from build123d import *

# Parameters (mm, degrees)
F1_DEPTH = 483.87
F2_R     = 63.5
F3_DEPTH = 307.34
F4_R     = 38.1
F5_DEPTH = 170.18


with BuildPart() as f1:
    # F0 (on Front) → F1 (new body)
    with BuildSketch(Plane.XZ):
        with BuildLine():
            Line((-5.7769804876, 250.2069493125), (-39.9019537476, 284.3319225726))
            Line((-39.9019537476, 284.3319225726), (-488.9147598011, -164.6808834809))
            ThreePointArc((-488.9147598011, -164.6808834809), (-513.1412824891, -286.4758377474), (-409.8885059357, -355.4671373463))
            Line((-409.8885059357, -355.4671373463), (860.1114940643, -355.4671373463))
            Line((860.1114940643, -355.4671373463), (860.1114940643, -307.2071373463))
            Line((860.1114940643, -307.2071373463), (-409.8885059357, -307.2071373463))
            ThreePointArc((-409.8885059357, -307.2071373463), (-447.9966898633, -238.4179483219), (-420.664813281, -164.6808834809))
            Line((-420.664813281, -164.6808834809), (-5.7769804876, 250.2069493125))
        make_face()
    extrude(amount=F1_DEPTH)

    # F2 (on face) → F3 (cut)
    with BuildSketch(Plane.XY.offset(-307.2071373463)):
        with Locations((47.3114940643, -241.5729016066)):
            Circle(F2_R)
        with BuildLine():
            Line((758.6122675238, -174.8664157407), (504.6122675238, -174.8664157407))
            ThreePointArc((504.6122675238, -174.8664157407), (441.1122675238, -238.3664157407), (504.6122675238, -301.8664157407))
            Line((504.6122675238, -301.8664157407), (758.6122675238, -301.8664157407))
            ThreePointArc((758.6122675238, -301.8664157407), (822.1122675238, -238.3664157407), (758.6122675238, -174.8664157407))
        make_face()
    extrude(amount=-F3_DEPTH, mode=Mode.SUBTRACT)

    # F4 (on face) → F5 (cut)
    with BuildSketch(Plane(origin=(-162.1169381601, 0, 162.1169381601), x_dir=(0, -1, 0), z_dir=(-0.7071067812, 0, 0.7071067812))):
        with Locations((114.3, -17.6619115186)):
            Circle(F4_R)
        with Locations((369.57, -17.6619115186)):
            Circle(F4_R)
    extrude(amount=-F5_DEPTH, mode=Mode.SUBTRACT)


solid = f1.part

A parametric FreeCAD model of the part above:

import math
import FreeCAD as App
import Part
import Sketcher
from FreeCAD import Vector
Q = App.Units.Quantity

doc = App.newDocument("Part")
body = doc.addObject("PartDesign::Body", "Body")

# Sketch on XZ plane
sketch1 = body.newObject("Sketcher::SketchObject", "Sketch")
sketch1.AttachmentSupport = (doc.getObject("XZ_Plane"), [""])
sketch1.MapMode = "FlatFace"
sketch1.addGeometry(Part.LineSegment(Vector(-6, 250, 0), Vector(-40, 284, 0)), False)
sketch1.addGeometry(Part.LineSegment(Vector(-40, 284, 0), Vector(-489, -165, 0)), False)
sketch1.addGeometry(Part.ArcOfCircle(Part.Circle(Vector(-410, -244, 0), Vector(0, 0, 1), 112), math.radians(135), math.radians(270)), False)
sketch1.addGeometry(Part.LineSegment(Vector(-410, -355, 0), Vector(860, -355, 0)), False)
sketch1.addGeometry(Part.LineSegment(Vector(860, -355, 0), Vector(860, -307, 0)), False)
sketch1.addGeometry(Part.LineSegment(Vector(860, -307, 0), Vector(-410, -307, 0)), False)
sketch1.addGeometry(Part.ArcOfCircle(Part.Circle(Vector(-354, -231, 0), Vector(0, 0, 1), 94), math.radians(135), math.radians(234)), False)
sketch1.addGeometry(Part.LineSegment(Vector(-421, -165, 0), Vector(-6, 250, 0)), False)
sketch1.addConstraint(Sketcher.Constraint("Coincident", 0, 2, 1, 1))
sketch1.addConstraint(Sketcher.Constraint("Tangent", 1, 2, 2, 1))
sketch1.addConstraint(Sketcher.Constraint("Tangent", 2, 2, 3, 1))
sketch1.addConstraint(Sketcher.Constraint("Coincident", 3, 2, 4, 1))
sketch1.addConstraint(Sketcher.Constraint("Coincident", 4, 2, 5, 1))
sketch1.addConstraint(Sketcher.Constraint("Coincident", 5, 2, 6, 2))
sketch1.addConstraint(Sketcher.Constraint("Tangent", 6, 1, 7, 1))
sketch1.addConstraint(Sketcher.Constraint("Coincident", 7, 2, 0, 1))
sketch1.addConstraint(Sketcher.Constraint("Horizontal", 3))
sketch1.addConstraint(Sketcher.Constraint("Vertical", 4))
sketch1.addConstraint(Sketcher.Constraint("Horizontal", 5))
sketch1.addConstraint(Sketcher.Constraint("Perpendicular", 0, 1))
sketch1.addConstraint(Sketcher.Constraint("Parallel", 1, 7))
sketch1.addConstraint(Sketcher.Constraint("Horizontal", 1, 2, 6, 1))
sketch1.addConstraint(Sketcher.Constraint("Vertical", 2, 2, 5, 2))
sketch1.addConstraint(Sketcher.Constraint("Radius", 2, Q("4.4 in")))
sketch1.addConstraint(Sketcher.Constraint("DistanceX", 3, 1, 3, 2, Q("50 in")))
sketch1.addConstraint(Sketcher.Constraint("Distance", 1, Q("25 in")))
sketch1.addConstraint(Sketcher.Constraint("DistanceY", 4, 1, 4, 2, Q("1.9 in")))
sketch1.addConstraint(Sketcher.Constraint("Angle", 0, Q("135 deg")))
sketch1.addConstraint(Sketcher.Constraint("Distance", 0, Q("1.9 in")))
sketch1.addConstraint(Sketcher.Constraint("DistanceY", 6, 3, -1, 1, 231.313371))
sketch1.addConstraint(Sketcher.Constraint("DistanceX", 1, 2, -1, 1, 488.91476))
pad1 = body.newObject("PartDesign::Pad", "Pad")
pad1.Profile = sketch1
pad1.Length = Q("19.05 in")

# Sketch on XY plane
sketch2 = body.newObject("Sketcher::SketchObject", "Sketch001")
sketch2.AttachmentSupport = (doc.getObject("XY_Plane"), [""])
sketch2.MapMode = "FlatFace"
sketch2.AttachmentOffset = App.Placement(Vector(0, 0, -307.207137), App.Rotation())
sketch2.addGeometry(Part.Circle(Vector(47, -242, 0), Vector(0, 0, 1), 64), False)
sketch2.addGeometry(Part.LineSegment(Vector(759, -175, 0), Vector(505, -175, 0)), False)
sketch2.addGeometry(Part.ArcOfCircle(Part.Circle(Vector(505, -238, 0), Vector(0, 0, 1), 64), math.radians(90), math.radians(270)), False)
sketch2.addGeometry(Part.LineSegment(Vector(505, -302, 0), Vector(759, -302, 0)), False)
sketch2.addGeometry(Part.ArcOfCircle(Part.Circle(Vector(759, -238, 0), Vector(0, 0, 1), 64), math.radians(-90), math.radians(90)), False)
sketch2.addConstraint(Sketcher.Constraint("Tangent", 1, 2, 2, 1))
sketch2.addConstraint(Sketcher.Constraint("Tangent", 2, 2, 3, 1))
sketch2.addConstraint(Sketcher.Constraint("Tangent", 3, 2, 4, 1))
sketch2.addConstraint(Sketcher.Constraint("Tangent", 4, 2, 1, 1))
sketch2.addConstraint(Sketcher.Constraint("Horizontal", 1))
sketch2.addConstraint(Sketcher.Constraint("Horizontal", 3))
sketch2.addConstraint(Sketcher.Constraint("Equal", 0, 2))
sketch2.addConstraint(Sketcher.Constraint("Diameter", 0, Q("5 in")))
sketch2.addConstraint(Sketcher.Constraint("DistanceX", 1, 2, 1, 1, Q("10 in")))
sketch2.addConstraint(Sketcher.Constraint("DistanceY", 0, 3, -1, 1, 241.572902))
sketch2.addConstraint(Sketcher.Constraint("DistanceX", -1, 1, 0, 3, 47.311494))
sketch2.addConstraint(Sketcher.Constraint("DistanceX", -1, 1, 2, 3, 504.612268))
sketch2.addConstraint(Sketcher.Constraint("DistanceY", 2, 3, -1, 1, 238.366416))
pocket1 = body.newObject("PartDesign::Pocket", "Pocket")
pocket1.Profile = sketch2
pocket1.Length = Q("12.1 in")

# Sketch on an angled plane
sketch3 = body.newObject("Sketcher::SketchObject", "Sketch002")
sketch3.Placement = App.Placement(Vector(-162.116938, 0, 162.116938), App.Rotation(Vector(0, -1, 0), Vector(0.707106781, 0, 0.707106781), Vector(-0.707106781, 0, 0.707106781), "ZXY"))
sketch3.addGeometry(Part.Circle(Vector(114, -18, 0), Vector(0, 0, 1), 38), False)
sketch3.addGeometry(Part.Circle(Vector(370, -18, 0), Vector(0, 0, 1), 38), False)
sketch3.addConstraint(Sketcher.Constraint("Equal", 0, 1))
sketch3.addConstraint(Sketcher.Constraint("Horizontal", 0, 3, 1, 3))
sketch3.addConstraint(Sketcher.Constraint("Diameter", 0, Q("3 in")))
sketch3.addConstraint(Sketcher.Constraint("DistanceX", -1, 1, 0, 3, Q("4.5 in")))
sketch3.addConstraint(Sketcher.Constraint("DistanceX", -1, 1, 1, 3, Q("14.55 in")))
sketch3.addConstraint(Sketcher.Constraint("DistanceY", 0, 3, -1, 1, 17.661912))
pocket2 = body.newObject("PartDesign::Pocket", "Pocket001")
pocket2.Profile = sketch3
pocket2.Length = Q("6.7 in")

doc.recompute()
